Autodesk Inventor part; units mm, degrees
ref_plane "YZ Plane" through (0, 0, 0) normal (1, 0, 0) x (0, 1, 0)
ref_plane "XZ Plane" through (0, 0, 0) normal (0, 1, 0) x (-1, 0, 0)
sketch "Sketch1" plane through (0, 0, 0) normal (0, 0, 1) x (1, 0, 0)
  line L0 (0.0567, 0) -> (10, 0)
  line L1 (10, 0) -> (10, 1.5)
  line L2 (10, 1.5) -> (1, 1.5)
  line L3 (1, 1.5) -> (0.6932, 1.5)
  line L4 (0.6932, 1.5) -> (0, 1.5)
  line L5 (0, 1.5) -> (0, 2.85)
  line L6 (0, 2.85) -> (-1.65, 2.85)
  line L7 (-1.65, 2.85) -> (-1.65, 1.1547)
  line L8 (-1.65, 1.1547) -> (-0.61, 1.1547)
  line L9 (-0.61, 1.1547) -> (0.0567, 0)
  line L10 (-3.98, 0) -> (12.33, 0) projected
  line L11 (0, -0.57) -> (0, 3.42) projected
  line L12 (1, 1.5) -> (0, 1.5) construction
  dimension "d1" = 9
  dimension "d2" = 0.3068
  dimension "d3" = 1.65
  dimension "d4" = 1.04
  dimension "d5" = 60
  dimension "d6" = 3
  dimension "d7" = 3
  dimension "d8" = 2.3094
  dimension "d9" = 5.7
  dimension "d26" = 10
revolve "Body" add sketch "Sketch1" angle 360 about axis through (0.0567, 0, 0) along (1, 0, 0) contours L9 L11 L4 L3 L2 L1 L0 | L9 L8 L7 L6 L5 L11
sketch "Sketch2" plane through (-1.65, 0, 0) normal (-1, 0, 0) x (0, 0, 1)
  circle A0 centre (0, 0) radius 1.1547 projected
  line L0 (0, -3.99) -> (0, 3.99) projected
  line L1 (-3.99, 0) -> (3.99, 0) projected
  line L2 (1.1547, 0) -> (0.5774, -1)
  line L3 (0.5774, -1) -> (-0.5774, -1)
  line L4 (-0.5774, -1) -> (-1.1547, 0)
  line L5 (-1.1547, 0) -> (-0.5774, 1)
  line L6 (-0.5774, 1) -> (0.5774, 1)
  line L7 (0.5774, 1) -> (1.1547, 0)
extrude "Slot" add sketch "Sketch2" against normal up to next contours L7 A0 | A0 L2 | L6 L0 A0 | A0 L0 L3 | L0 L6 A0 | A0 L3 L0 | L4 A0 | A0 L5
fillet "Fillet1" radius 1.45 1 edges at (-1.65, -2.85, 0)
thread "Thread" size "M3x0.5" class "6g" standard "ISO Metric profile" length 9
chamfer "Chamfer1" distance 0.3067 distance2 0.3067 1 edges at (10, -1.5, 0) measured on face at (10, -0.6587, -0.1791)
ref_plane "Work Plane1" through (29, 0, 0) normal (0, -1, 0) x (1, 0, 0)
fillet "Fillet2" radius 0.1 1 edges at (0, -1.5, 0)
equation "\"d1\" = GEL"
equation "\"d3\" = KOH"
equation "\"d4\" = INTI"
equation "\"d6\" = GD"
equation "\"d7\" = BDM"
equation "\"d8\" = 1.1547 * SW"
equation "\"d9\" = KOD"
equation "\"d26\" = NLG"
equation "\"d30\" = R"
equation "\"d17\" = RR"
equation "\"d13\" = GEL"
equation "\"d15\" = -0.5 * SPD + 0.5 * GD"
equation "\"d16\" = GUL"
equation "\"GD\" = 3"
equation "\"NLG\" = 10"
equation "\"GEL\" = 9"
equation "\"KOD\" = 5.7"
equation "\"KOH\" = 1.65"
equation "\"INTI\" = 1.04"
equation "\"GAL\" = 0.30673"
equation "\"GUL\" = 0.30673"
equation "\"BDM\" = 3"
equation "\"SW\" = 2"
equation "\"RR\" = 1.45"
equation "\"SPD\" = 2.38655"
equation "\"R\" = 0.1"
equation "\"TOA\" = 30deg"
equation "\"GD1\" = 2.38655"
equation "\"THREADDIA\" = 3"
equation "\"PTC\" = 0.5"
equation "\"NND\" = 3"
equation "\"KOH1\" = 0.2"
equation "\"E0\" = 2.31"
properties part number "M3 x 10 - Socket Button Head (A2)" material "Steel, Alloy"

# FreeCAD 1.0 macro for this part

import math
import FreeCAD as App
import Part
import Sketcher

V = App.Vector
Q = App.Units.Quantity


def edges_at(feature, points):
    """Names of the edges that pass closest to the given points."""
    edges = feature.Shape.Edges
    near = lambda p: min(range(len(edges)), key=lambda i: edges[i].distToShape(Part.Vertex(*p))[0])
    return sorted({f"Edge{near(p) + 1}" for p in points})


def add_polygon(sketch, points):
    """Adds a closed chain of lines whose ends are joined by coincident constraints."""
    first, n = sketch.GeometryCount, len(points)
    for a, b in zip(points, points[1:] + points[:1]):
        sketch.addGeometry(Part.LineSegment(App.Vector(*a, 0), App.Vector(*b, 0)), False)
    for i in range(n):
        sketch.addConstraint(Sketcher.Constraint("Coincident", first + i, 2, first + (i + 1) % n, 1))

doc = App.newDocument("Part")
body = doc.addObject("PartDesign::Body", "Body")

# Sketch on XY plane
sketch1 = body.newObject("Sketcher::SketchObject", "Sketch")
sketch1.AttachmentSupport = (doc.getObject("XY_Plane"), [""])
sketch1.MapMode = "FlatFace"
add_polygon(sketch1, [(0.1, 0), (10, 0), (10, 1.5), (0, 1.5), (0, 2.9), (-1.6, 2.9), (-1.6, 1.2), (-0.6, 1.2)])  # lines 0-7
sketch1.addConstraint(Sketcher.Constraint("Horizontal", 0))
sketch1.addConstraint(Sketcher.Constraint("Vertical", 1))
sketch1.addConstraint(Sketcher.Constraint("Horizontal", 2))
sketch1.addConstraint(Sketcher.Constraint("Vertical", 3))
sketch1.addConstraint(Sketcher.Constraint("Horizontal", 4))
sketch1.addConstraint(Sketcher.Constraint("Vertical", 5))
sketch1.addConstraint(Sketcher.Constraint("Horizontal", 6))
sketch1.addConstraint(Sketcher.Constraint("PointOnObject", 0, 2, -1))
sketch1.addConstraint(Sketcher.Constraint("PointOnObject", 2, 2, -2))
sketch1.addConstraint(Sketcher.Constraint("DistanceX", 2, 2, 2, 1, Q("10 mm")))
sketch1.addConstraint(Sketcher.Constraint("DistanceX", 4, 2, 4, 1, Q("1.65 mm")))
sketch1.addConstraint(Sketcher.Constraint("DistanceX", 6, 1, 6, 2, Q("1.04 mm")))
sketch1.addConstraint(Sketcher.Constraint("DistanceY", 1, 1, 1, 2, Q("1.5 mm")))
sketch1.addConstraint(Sketcher.Constraint("DistanceY", 3, 1, 3, 2, Q("1.35 mm")))
sketch1.addConstraint(Sketcher.Constraint("DistanceX", 0, 1, 0, 2, Q("9.9433 mm")))
sketch1.addConstraint(Sketcher.Constraint("DistanceY", 5, 2, 5, 1, Q("1.6953 mm")))
revolution = body.newObject("PartDesign::Revolution", "Revolution")
revolution.Profile = sketch1
revolution.ReferenceAxis = (sketch1, ["H_Axis"])
revolution.Angle = 360

# Sketch on YZ plane
sketch2 = body.newObject("Sketcher::SketchObject", "Sketch001")
sketch2.AttachmentSupport = (doc.getObject("YZ_Plane"), [""])
sketch2.MapMode = "FlatFace"
sketch2.AttachmentOffset = App.Placement(V(0, 0, -1.65), App.Rotation())
sketch2.addGeometry(Part.LineSegment(V(1, 0.6, 0), V(0, 1.2, 0)), False)
sketch2.addGeometry(Part.ArcOfCircle(Part.Circle(V(0, 0, 0), V(0, 0, 1), 1.2), math.radians(30), math.radians(90)), False)
sketch2.addGeometry(Part.ArcOfCircle(Part.Circle(V(0, 0, 0), V(0, 0, 1), 1.2), math.radians(90), math.radians(150)), False)
sketch2.addGeometry(Part.LineSegment(V(0, 1.2, 0), V(-1, 0.6, 0)), False)
sketch2.addGeometry(Part.ArcOfCircle(Part.Circle(V(0, 0, 0), V(0, 0, 1), 1.2), math.radians(-30), math.radians(30)), False)
sketch2.addGeometry(Part.LineSegment(V(1, 0.6, 0), V(1, -0.6, 0)), False)
sketch2.addGeometry(Part.LineSegment(V(-1, 0.6, 0), V(-1, -0.6, 0)), False)
sketch2.addGeometry(Part.ArcOfCircle(Part.Circle(V(0, 0, 0), V(0, 0, 1), 1.2), math.radians(150), math.radians(210)), False)
sketch2.addGeometry(Part.LineSegment(V(-1, -0.6, 0), V(0, -1.2, 0)), False)
sketch2.addGeometry(Part.ArcOfCircle(Part.Circle(V(0, 0, 0), V(0, 0, 1), 1.2), math.radians(-150), math.radians(-90)), False)
sketch2.addGeometry(Part.ArcOfCircle(Part.Circle(V(0, 0, 0), V(0, 0, 1), 1.2), math.radians(-90), math.radians(-30)), False)
sketch2.addGeometry(Part.LineSegment(V(0, -1.2, 0), V(1, -0.6, 0)), False)
sketch2.addConstraint(Sketcher.Constraint("Coincident", 0, 1, 1, 1))
sketch2.addConstraint(Sketcher.Constraint("Coincident", 1, 2, 0, 2))
sketch2.addConstraint(Sketcher.Constraint("Coincident", 2, 1, 3, 1))
sketch2.addConstraint(Sketcher.Constraint("Coincident", 3, 2, 2, 2))
sketch2.addConstraint(Sketcher.Constraint("Coincident", 4, 1, 5, 2))
sketch2.addConstraint(Sketcher.Constraint("Coincident", 5, 1, 4, 2))
sketch2.addConstraint(Sketcher.Constraint("Coincident", 6, 1, 7, 1))
sketch2.addConstraint(Sketcher.Constraint("Coincident", 7, 2, 6, 2))
sketch2.addConstraint(Sketcher.Constraint("Coincident", 8, 1, 9, 1))
sketch2.addConstraint(Sketcher.Constraint("Coincident", 9, 2, 8, 2))
sketch2.addConstraint(Sketcher.Constraint("Coincident", 10, 1, 11, 1))
sketch2.addConstraint(Sketcher.Constraint("Coincident", 11, 2, 10, 2))
sketch2.addConstraint(Sketcher.Constraint("Vertical", 5))
sketch2.addConstraint(Sketcher.Constraint("Vertical", 6))
sketch2.addConstraint(Sketcher.Constraint("Coincident", 1, 3, -1, 1))
sketch2.addConstraint(Sketcher.Constraint("Coincident", 2, 3, -1, 1))
sketch2.addConstraint(Sketcher.Constraint("Coincident", 4, 3, -1, 1))
sketch2.addConstraint(Sketcher.Constraint("Coincident", 7, 3, -1, 1))
sketch2.addConstraint(Sketcher.Constraint("Coincident", 9, 3, -1, 1))
sketch2.addConstraint(Sketcher.Constraint("Coincident", 10, 3, -1, 1))
sketch2.addConstraint(Sketcher.Constraint("Coincident", 2, 1, 1, 2))
sketch2.addConstraint(Sketcher.Constraint("Coincident", 5, 1, 0, 1))
sketch2.addConstraint(Sketcher.Constraint("Coincident", 6, 1, 3, 2))
sketch2.addConstraint(Sketcher.Constraint("Coincident", 8, 1, 7, 2))
sketch2.addConstraint(Sketcher.Constraint("Coincident", 10, 1, 9, 2))
sketch2.addConstraint(Sketcher.Constraint("PointOnObject", 1, 2, -2))
sketch2.addConstraint(Sketcher.Constraint("PointOnObject", 9, 2, -2))
sketch2.addConstraint(Sketcher.Constraint("Parallel", 0, 8))
sketch2.addConstraint(Sketcher.Constraint("Parallel", 3, 11))
sketch2.addConstraint(Sketcher.Constraint("DistanceX", -1, 1, 0, 1, Q("1 mm")))
sketch2.addConstraint(Sketcher.Constraint("Radius", 1, Q("1.1547 mm")))
pad1 = body.newObject("PartDesign::Pad", "Pad")
pad1.Profile = sketch2
pad1.Type = "UpToFirst"
doc.recompute()

fillet = body.newObject("PartDesign::Fillet", "Fillet")
fillet.Base = (pad1, edges_at(pad1, [(-1.65, -2.85, 0)]))
fillet.Radius = 1.45
doc.recompute()

chamfer = body.newObject("PartDesign::Chamfer", "Chamfer")
chamfer.Base = (fillet, edges_at(fillet, [(10, -1.5, 0)]))
chamfer.ChamferType = "Two distances"
chamfer.Size = 0.3067
chamfer.Size2 = 0.3067
doc.recompute()

fillet2 = body.newObject("PartDesign::Fillet", "Fillet001")
fillet2.Base = (chamfer, edges_at(chamfer, [(0, -1.5, 0)]))
fillet2.Radius = 0.1

doc.recompute()
